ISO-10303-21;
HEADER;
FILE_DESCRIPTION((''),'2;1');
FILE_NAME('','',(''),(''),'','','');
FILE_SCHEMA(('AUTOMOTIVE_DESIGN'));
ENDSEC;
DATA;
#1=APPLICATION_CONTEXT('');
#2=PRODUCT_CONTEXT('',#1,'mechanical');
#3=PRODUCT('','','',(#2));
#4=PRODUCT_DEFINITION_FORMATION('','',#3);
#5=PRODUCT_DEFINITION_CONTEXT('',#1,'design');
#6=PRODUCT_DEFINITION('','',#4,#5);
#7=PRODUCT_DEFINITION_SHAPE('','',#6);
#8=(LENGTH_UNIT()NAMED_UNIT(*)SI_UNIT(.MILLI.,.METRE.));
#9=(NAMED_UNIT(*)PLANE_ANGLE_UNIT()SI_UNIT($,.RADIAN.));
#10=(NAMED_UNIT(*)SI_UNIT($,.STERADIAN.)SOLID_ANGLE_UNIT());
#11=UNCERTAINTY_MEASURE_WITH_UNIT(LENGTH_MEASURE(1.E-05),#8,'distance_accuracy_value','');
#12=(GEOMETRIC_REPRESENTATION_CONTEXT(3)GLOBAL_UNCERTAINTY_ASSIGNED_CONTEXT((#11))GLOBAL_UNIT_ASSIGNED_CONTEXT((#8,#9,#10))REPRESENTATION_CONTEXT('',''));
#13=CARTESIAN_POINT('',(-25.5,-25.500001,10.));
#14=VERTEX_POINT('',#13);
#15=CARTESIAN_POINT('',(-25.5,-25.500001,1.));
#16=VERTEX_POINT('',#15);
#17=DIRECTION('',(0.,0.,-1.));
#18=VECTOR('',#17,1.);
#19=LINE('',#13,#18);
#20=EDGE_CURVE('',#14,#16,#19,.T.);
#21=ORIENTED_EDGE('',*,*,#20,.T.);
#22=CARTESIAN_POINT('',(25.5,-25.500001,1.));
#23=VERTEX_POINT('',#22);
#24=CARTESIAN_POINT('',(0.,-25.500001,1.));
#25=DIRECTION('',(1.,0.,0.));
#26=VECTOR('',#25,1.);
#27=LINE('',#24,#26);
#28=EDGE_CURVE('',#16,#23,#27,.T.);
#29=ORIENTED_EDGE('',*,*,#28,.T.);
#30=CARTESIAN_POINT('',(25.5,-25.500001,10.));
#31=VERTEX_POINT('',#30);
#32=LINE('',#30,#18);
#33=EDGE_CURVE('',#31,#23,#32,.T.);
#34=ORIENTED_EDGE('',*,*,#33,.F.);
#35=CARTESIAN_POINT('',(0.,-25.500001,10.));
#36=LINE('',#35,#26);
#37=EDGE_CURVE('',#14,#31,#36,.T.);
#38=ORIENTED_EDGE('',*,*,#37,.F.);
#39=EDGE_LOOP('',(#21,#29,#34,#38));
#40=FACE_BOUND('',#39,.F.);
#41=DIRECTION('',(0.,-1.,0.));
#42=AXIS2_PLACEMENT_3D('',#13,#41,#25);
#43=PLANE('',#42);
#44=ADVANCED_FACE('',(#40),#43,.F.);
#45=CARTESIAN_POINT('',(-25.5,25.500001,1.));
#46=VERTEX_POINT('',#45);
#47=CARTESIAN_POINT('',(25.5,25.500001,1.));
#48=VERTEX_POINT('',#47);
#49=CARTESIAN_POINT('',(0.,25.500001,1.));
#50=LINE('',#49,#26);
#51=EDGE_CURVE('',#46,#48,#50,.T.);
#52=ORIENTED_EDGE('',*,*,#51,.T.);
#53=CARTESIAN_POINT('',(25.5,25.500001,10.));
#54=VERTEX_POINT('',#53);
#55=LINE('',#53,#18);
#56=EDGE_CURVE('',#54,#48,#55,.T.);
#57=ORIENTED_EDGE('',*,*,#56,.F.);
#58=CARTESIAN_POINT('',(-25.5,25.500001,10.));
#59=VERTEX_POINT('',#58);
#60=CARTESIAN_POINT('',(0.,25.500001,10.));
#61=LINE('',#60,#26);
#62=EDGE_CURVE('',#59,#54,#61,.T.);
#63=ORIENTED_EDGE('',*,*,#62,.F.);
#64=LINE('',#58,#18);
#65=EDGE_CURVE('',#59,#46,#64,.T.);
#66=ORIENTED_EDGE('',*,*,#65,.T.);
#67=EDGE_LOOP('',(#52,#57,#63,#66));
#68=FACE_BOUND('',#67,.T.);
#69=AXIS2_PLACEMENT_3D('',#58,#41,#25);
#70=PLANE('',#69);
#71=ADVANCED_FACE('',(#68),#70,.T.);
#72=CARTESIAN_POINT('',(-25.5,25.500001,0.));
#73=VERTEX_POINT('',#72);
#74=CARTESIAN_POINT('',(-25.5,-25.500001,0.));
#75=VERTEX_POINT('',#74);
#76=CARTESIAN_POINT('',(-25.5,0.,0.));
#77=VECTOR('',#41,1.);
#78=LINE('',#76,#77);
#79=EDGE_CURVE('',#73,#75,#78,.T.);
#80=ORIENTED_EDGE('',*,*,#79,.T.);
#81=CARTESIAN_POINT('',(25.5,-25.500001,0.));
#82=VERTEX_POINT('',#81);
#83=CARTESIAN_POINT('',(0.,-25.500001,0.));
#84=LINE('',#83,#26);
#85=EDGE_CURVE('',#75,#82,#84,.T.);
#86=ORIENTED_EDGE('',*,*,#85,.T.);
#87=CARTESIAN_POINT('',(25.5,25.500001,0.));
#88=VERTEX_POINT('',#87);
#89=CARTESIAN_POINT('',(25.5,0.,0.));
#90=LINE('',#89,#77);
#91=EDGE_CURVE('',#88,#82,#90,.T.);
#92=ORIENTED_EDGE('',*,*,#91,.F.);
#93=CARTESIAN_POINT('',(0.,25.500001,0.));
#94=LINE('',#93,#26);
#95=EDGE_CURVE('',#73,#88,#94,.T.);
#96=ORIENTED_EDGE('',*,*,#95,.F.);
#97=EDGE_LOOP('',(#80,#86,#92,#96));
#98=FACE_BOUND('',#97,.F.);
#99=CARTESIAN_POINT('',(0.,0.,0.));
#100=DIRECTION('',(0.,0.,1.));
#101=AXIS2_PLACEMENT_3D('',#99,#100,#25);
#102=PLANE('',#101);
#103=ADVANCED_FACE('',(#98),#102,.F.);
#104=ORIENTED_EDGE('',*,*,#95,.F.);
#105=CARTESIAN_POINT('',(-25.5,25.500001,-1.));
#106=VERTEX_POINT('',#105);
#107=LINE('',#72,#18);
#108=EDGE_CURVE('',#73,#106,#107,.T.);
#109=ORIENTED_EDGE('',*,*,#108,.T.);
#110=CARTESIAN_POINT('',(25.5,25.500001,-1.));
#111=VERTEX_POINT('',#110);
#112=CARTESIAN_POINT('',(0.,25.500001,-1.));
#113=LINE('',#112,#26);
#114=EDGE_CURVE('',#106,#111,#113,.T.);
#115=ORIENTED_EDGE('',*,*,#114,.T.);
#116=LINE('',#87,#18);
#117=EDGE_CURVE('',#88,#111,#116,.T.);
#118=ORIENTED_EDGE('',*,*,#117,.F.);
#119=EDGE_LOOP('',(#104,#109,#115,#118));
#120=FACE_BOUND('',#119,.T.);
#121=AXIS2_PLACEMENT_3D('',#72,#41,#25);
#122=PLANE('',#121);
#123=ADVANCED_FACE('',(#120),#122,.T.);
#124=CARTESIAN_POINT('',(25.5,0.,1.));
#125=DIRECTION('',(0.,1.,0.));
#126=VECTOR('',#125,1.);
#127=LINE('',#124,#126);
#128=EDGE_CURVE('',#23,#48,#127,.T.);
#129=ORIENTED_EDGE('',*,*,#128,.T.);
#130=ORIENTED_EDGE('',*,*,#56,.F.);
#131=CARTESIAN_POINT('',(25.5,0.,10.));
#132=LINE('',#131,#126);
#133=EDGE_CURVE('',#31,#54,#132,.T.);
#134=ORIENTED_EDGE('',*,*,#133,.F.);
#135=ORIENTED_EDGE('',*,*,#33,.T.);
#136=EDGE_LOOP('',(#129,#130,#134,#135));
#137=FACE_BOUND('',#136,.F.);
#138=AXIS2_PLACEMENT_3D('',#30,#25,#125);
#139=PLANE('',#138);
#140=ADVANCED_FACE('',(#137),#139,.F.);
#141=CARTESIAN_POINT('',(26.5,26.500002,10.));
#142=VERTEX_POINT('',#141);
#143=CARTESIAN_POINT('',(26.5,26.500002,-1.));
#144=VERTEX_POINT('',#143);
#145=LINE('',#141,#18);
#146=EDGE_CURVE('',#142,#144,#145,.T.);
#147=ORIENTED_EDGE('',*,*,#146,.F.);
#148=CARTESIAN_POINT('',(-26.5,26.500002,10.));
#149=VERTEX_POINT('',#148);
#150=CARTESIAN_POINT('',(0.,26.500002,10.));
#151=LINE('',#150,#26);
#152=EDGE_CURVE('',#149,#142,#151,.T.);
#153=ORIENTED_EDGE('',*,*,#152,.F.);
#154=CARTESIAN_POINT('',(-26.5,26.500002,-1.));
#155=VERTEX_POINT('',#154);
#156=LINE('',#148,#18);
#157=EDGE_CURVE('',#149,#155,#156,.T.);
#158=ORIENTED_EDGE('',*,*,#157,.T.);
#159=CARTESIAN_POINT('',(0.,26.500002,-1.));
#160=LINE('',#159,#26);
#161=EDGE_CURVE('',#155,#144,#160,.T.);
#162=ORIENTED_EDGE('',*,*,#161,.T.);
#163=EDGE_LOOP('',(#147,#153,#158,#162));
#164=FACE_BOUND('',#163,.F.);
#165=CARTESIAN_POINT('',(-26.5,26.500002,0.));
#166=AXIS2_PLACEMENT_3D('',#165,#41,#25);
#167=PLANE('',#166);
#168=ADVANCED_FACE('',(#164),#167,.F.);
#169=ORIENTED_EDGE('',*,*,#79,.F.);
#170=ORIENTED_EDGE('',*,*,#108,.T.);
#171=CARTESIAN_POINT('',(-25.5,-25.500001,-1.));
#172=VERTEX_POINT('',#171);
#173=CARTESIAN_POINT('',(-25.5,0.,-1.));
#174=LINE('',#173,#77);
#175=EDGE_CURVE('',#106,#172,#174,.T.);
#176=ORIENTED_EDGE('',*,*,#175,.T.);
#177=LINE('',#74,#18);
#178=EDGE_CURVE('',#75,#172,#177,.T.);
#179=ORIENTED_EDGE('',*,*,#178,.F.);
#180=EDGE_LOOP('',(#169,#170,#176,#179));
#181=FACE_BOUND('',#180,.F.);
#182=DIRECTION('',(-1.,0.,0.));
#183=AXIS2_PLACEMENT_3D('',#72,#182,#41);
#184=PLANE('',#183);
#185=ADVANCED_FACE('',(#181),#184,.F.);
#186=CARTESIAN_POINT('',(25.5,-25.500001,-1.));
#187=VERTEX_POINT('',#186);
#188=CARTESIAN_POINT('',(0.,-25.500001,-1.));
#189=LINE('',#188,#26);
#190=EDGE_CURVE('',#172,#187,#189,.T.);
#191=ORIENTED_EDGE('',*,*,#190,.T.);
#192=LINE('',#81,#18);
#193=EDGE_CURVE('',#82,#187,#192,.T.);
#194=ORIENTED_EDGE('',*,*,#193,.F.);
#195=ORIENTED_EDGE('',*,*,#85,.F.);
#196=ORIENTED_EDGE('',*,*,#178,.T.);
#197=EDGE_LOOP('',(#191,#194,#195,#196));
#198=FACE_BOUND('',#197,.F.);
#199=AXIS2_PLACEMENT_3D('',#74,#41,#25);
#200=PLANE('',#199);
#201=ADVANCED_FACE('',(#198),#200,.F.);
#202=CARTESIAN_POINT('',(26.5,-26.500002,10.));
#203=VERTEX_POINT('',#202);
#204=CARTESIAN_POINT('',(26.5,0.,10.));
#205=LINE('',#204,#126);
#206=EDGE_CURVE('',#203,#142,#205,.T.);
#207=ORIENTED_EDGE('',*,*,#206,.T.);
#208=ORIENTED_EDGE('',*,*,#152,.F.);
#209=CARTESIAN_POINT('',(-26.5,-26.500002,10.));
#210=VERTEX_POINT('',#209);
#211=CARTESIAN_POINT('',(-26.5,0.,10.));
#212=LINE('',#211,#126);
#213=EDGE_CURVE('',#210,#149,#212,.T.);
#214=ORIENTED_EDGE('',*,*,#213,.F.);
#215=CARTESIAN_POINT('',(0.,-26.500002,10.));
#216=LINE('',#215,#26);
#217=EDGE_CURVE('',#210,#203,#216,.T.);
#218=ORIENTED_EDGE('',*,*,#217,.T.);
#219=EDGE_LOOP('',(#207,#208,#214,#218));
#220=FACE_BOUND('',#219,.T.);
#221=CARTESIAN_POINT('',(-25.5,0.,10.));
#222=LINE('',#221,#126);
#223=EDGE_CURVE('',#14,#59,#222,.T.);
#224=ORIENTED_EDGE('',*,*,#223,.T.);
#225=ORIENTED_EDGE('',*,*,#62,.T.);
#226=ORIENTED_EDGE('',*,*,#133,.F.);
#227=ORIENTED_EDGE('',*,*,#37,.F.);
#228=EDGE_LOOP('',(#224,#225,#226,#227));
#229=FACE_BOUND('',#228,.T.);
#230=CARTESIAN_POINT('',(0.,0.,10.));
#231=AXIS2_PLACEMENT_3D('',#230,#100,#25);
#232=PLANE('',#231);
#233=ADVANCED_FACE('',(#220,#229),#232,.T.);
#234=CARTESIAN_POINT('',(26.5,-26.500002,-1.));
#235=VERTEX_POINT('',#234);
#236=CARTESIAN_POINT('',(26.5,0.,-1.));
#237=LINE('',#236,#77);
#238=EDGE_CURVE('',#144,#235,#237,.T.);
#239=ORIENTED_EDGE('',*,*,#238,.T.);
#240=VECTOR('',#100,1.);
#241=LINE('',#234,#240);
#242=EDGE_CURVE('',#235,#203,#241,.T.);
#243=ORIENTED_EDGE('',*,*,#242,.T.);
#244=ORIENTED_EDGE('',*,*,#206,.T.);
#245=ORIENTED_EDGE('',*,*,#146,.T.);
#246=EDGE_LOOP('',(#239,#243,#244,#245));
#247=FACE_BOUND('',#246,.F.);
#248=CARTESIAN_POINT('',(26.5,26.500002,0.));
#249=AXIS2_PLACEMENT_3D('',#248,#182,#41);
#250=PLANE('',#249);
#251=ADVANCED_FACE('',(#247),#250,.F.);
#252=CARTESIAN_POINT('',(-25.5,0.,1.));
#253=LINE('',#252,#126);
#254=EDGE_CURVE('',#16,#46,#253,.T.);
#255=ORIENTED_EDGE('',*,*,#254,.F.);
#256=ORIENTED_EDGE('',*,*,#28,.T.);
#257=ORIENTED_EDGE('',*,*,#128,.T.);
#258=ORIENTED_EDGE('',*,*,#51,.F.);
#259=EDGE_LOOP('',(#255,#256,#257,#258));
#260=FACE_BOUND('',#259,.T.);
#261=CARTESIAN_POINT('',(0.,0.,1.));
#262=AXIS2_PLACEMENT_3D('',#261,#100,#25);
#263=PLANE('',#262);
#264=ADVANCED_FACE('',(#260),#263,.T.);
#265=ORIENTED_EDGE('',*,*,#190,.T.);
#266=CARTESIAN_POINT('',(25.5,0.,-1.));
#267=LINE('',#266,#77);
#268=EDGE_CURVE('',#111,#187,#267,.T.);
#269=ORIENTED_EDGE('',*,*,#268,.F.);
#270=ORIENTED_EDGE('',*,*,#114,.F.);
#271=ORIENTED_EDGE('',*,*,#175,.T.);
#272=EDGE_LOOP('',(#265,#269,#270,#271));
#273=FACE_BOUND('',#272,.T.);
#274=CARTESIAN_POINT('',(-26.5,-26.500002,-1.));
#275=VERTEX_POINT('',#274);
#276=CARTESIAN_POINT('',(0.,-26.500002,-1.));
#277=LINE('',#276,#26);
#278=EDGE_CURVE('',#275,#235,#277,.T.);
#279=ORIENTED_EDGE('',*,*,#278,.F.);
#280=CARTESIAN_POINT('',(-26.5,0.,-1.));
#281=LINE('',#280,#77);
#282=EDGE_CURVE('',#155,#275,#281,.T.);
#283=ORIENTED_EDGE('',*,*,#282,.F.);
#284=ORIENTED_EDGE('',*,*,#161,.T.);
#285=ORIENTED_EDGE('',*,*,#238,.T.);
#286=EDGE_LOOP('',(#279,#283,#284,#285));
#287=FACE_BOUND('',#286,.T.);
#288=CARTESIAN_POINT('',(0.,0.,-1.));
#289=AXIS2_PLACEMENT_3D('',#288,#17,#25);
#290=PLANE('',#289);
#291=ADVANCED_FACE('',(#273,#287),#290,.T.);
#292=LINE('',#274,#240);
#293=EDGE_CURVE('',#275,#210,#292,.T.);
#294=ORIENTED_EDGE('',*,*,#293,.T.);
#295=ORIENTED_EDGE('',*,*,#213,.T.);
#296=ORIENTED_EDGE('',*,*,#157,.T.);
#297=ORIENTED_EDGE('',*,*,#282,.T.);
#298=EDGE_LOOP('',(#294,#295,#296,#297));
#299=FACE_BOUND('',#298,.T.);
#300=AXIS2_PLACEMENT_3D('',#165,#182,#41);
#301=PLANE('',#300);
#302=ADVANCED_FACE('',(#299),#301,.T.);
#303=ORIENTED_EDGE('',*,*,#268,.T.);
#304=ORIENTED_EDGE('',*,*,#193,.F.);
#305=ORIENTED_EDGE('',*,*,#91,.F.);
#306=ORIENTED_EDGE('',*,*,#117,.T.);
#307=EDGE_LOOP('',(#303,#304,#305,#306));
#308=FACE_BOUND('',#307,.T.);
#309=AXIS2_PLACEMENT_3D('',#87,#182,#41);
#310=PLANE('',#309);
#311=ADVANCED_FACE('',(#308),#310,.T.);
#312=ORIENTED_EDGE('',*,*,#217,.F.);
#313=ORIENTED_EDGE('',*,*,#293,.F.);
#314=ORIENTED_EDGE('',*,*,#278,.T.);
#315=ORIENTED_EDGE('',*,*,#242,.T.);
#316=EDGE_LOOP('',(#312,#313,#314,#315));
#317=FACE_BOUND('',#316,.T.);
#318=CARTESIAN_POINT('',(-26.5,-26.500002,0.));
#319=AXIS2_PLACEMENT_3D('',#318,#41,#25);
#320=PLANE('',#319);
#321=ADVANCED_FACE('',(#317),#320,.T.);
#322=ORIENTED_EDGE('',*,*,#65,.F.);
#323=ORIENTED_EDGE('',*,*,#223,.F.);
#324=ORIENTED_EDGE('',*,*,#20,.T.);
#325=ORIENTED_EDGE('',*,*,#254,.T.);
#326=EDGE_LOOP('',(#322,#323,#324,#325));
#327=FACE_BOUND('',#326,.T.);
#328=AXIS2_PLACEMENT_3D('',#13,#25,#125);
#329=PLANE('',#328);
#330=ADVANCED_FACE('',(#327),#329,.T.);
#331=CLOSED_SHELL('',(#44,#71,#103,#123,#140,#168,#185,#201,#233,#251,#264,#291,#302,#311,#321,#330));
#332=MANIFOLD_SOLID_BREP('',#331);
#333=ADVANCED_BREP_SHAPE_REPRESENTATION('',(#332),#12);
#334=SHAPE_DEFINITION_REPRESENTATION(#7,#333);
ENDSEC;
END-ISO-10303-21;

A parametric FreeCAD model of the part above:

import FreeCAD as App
import Part
import Sketcher
from FreeCAD import Vector

doc = App.newDocument("Part")
body = doc.addObject("PartDesign::Body", "Body")

# Sketch on XY plane
sketch1 = body.newObject("Sketcher::SketchObject", "Sketch")
sketch1.AttachmentSupport = (doc.getObject("XY_Plane"), [""])
sketch1.MapMode = "FlatFace"
sketch1.addGeometry([
    Part.LineSegment(Vector(-26.5, 26.500002, 0), Vector(-26.5, -26.500002, 0)),
    Part.LineSegment(Vector(-26.5, -26.500002, 0), Vector(26.5, -26.500002, 0)),
    Part.LineSegment(Vector(26.5, -26.500002, 0), Vector(26.5, 26.500002, 0)),
    Part.LineSegment(Vector(26.5, 26.500002, 0), Vector(-26.5, 26.500002, 0)),
], False)
sketch1.addConstraint([
    Sketcher.Constraint("Coincident", 0, 2, 1, 1),
    Sketcher.Constraint("Coincident", 1, 2, 2, 1),
    Sketcher.Constraint("Coincident", 2, 2, 3, 1),
    Sketcher.Constraint("Coincident", 3, 2, 0, 1),
    Sketcher.Constraint("Vertical", 0),
    Sketcher.Constraint("Horizontal", 1),
    Sketcher.Constraint("Vertical", 2),
    Sketcher.Constraint("Horizontal", 3),
    Sketcher.Constraint("Symmetric", 0, 2, 2, 2, -1, 1),
    Sketcher.Constraint("DistanceX", 1, 1, 1, 2, 53.0),
    Sketcher.Constraint("DistanceY", 0, 2, -1, 1, 26.500002),
])
pad1 = body.newObject("PartDesign::Pad", "Pad")
pad1.Profile = sketch1
pad1.Length = 10

# Sketch on XY plane
sketch2 = body.newObject("Sketcher::SketchObject", "Sketch001")
sketch2.AttachmentSupport = (doc.getObject("XY_Plane"), [""])
sketch2.MapMode = "FlatFace"
sketch2.addGeometry([
    Part.LineSegment(Vector(-26.5, -26.500002, 0), Vector(-26.5, 26.500002, 0)),  # 0
    Part.LineSegment(Vector(-26.5, 26.500002, 0), Vector(26.5, 26.500002, 0)),  # 1
    Part.LineSegment(Vector(26.5, 26.500002, 0), Vector(26.5, -26.500002, 0)),  # 2
    Part.LineSegment(Vector(26.5, -26.500002, 0), Vector(-26.5, -26.500002, 0)),  # 3
    Part.LineSegment(Vector(25.5, 25.500001, 0), Vector(-25.5, 25.500001, 0)),  # 4
    Part.LineSegment(Vector(-25.5, 25.500001, 0), Vector(-25.5, -25.500001, 0)),  # 5
    Part.LineSegment(Vector(-25.5, -25.500001, 0), Vector(25.5, -25.500001, 0)),  # 6
    Part.LineSegment(Vector(25.5, -25.500001, 0), Vector(25.5, 25.500001, 0)),  # 7
], False)
sketch2.addConstraint([
    Sketcher.Constraint("Coincident", 0, 2, 1, 1),
    Sketcher.Constraint("Coincident", 1, 2, 2, 1),
    Sketcher.Constraint("Coincident", 2, 2, 3, 1),
    Sketcher.Constraint("Coincident", 3, 2, 0, 1),
    Sketcher.Constraint("Coincident", 4, 2, 5, 1),
    Sketcher.Constraint("Coincident", 5, 2, 6, 1),
    Sketcher.Constraint("Coincident", 6, 2, 7, 1),
    Sketcher.Constraint("Coincident", 7, 2, 4, 1),
    Sketcher.Constraint("Vertical", 0),
    Sketcher.Constraint("Horizontal", 1),
    Sketcher.Constraint("Vertical", 2),
    Sketcher.Constraint("Horizontal", 3),
    Sketcher.Constraint("Horizontal", 4),
    Sketcher.Constraint("Vertical", 5),
    Sketcher.Constraint("Horizontal", 6),
    Sketcher.Constraint("Vertical", 7),
    Sketcher.Constraint("Symmetric", 0, 2, 2, 2, -1, 1),
    Sketcher.Constraint("Symmetric", 4, 2, 6, 2, -1, 1),
    Sketcher.Constraint("DistanceX", 1, 1, 1, 2, 53.0),
    Sketcher.Constraint("DistanceX", 4, 2, 4, 1, 51.0),
    Sketcher.Constraint("DistanceY", 4, 2, 0, 2, 1.000001),
    Sketcher.Constraint("DistanceY", -1, 1, 0, 2, 26.500002),
])
pad2 = body.newObject("PartDesign::Pad", "Pad001")
pad2.Profile = sketch2
pad2.Length = 1
pad2.Reversed = True

# Sketch on XY plane
sketch3 = body.newObject("Sketcher::SketchObject", "Sketch002")
sketch3.AttachmentSupport = (doc.getObject("XY_Plane"), [""])
sketch3.MapMode = "FlatFace"
sketch3.AttachmentOffset = App.Placement(Vector(0, 0, 10), App.Rotation())
sketch3.addGeometry([
    Part.LineSegment(Vector(-25.5, 25.500001, 0), Vector(-25.5, -25.500001, 0)),
    Part.LineSegment(Vector(-25.5, -25.500001, 0), Vector(25.5, -25.500001, 0)),
    Part.LineSegment(Vector(25.5, -25.500001, 0), Vector(25.5, 25.500001, 0)),
    Part.LineSegment(Vector(25.5, 25.500001, 0), Vector(-25.5, 25.500001, 0)),
], False)
sketch3.addConstraint([
    Sketcher.Constraint("Coincident", 0, 2, 1, 1),
    Sketcher.Constraint("Coincident", 1, 2, 2, 1),
    Sketcher.Constraint("Coincident", 2, 2, 3, 1),
    Sketcher.Constraint("Coincident", 3, 2, 0, 1),
    Sketcher.Constraint("Vertical", 0),
    Sketcher.Constraint("Horizontal", 1),
    Sketcher.Constraint("Vertical", 2),
    Sketcher.Constraint("Horizontal", 3),
    Sketcher.Constraint("Symmetric", 0, 2, 2, 2, -1, 1),
    Sketcher.Constraint("DistanceX", 1, 1, 1, 2, 51.0),
    Sketcher.Constraint("DistanceY", 0, 2, -1, 1, 25.500001),
])
pocket1 = body.newObject("PartDesign::Pocket", "Pocket")
pocket1.Profile = sketch3
pocket1.Length = 9

doc.recompute()
